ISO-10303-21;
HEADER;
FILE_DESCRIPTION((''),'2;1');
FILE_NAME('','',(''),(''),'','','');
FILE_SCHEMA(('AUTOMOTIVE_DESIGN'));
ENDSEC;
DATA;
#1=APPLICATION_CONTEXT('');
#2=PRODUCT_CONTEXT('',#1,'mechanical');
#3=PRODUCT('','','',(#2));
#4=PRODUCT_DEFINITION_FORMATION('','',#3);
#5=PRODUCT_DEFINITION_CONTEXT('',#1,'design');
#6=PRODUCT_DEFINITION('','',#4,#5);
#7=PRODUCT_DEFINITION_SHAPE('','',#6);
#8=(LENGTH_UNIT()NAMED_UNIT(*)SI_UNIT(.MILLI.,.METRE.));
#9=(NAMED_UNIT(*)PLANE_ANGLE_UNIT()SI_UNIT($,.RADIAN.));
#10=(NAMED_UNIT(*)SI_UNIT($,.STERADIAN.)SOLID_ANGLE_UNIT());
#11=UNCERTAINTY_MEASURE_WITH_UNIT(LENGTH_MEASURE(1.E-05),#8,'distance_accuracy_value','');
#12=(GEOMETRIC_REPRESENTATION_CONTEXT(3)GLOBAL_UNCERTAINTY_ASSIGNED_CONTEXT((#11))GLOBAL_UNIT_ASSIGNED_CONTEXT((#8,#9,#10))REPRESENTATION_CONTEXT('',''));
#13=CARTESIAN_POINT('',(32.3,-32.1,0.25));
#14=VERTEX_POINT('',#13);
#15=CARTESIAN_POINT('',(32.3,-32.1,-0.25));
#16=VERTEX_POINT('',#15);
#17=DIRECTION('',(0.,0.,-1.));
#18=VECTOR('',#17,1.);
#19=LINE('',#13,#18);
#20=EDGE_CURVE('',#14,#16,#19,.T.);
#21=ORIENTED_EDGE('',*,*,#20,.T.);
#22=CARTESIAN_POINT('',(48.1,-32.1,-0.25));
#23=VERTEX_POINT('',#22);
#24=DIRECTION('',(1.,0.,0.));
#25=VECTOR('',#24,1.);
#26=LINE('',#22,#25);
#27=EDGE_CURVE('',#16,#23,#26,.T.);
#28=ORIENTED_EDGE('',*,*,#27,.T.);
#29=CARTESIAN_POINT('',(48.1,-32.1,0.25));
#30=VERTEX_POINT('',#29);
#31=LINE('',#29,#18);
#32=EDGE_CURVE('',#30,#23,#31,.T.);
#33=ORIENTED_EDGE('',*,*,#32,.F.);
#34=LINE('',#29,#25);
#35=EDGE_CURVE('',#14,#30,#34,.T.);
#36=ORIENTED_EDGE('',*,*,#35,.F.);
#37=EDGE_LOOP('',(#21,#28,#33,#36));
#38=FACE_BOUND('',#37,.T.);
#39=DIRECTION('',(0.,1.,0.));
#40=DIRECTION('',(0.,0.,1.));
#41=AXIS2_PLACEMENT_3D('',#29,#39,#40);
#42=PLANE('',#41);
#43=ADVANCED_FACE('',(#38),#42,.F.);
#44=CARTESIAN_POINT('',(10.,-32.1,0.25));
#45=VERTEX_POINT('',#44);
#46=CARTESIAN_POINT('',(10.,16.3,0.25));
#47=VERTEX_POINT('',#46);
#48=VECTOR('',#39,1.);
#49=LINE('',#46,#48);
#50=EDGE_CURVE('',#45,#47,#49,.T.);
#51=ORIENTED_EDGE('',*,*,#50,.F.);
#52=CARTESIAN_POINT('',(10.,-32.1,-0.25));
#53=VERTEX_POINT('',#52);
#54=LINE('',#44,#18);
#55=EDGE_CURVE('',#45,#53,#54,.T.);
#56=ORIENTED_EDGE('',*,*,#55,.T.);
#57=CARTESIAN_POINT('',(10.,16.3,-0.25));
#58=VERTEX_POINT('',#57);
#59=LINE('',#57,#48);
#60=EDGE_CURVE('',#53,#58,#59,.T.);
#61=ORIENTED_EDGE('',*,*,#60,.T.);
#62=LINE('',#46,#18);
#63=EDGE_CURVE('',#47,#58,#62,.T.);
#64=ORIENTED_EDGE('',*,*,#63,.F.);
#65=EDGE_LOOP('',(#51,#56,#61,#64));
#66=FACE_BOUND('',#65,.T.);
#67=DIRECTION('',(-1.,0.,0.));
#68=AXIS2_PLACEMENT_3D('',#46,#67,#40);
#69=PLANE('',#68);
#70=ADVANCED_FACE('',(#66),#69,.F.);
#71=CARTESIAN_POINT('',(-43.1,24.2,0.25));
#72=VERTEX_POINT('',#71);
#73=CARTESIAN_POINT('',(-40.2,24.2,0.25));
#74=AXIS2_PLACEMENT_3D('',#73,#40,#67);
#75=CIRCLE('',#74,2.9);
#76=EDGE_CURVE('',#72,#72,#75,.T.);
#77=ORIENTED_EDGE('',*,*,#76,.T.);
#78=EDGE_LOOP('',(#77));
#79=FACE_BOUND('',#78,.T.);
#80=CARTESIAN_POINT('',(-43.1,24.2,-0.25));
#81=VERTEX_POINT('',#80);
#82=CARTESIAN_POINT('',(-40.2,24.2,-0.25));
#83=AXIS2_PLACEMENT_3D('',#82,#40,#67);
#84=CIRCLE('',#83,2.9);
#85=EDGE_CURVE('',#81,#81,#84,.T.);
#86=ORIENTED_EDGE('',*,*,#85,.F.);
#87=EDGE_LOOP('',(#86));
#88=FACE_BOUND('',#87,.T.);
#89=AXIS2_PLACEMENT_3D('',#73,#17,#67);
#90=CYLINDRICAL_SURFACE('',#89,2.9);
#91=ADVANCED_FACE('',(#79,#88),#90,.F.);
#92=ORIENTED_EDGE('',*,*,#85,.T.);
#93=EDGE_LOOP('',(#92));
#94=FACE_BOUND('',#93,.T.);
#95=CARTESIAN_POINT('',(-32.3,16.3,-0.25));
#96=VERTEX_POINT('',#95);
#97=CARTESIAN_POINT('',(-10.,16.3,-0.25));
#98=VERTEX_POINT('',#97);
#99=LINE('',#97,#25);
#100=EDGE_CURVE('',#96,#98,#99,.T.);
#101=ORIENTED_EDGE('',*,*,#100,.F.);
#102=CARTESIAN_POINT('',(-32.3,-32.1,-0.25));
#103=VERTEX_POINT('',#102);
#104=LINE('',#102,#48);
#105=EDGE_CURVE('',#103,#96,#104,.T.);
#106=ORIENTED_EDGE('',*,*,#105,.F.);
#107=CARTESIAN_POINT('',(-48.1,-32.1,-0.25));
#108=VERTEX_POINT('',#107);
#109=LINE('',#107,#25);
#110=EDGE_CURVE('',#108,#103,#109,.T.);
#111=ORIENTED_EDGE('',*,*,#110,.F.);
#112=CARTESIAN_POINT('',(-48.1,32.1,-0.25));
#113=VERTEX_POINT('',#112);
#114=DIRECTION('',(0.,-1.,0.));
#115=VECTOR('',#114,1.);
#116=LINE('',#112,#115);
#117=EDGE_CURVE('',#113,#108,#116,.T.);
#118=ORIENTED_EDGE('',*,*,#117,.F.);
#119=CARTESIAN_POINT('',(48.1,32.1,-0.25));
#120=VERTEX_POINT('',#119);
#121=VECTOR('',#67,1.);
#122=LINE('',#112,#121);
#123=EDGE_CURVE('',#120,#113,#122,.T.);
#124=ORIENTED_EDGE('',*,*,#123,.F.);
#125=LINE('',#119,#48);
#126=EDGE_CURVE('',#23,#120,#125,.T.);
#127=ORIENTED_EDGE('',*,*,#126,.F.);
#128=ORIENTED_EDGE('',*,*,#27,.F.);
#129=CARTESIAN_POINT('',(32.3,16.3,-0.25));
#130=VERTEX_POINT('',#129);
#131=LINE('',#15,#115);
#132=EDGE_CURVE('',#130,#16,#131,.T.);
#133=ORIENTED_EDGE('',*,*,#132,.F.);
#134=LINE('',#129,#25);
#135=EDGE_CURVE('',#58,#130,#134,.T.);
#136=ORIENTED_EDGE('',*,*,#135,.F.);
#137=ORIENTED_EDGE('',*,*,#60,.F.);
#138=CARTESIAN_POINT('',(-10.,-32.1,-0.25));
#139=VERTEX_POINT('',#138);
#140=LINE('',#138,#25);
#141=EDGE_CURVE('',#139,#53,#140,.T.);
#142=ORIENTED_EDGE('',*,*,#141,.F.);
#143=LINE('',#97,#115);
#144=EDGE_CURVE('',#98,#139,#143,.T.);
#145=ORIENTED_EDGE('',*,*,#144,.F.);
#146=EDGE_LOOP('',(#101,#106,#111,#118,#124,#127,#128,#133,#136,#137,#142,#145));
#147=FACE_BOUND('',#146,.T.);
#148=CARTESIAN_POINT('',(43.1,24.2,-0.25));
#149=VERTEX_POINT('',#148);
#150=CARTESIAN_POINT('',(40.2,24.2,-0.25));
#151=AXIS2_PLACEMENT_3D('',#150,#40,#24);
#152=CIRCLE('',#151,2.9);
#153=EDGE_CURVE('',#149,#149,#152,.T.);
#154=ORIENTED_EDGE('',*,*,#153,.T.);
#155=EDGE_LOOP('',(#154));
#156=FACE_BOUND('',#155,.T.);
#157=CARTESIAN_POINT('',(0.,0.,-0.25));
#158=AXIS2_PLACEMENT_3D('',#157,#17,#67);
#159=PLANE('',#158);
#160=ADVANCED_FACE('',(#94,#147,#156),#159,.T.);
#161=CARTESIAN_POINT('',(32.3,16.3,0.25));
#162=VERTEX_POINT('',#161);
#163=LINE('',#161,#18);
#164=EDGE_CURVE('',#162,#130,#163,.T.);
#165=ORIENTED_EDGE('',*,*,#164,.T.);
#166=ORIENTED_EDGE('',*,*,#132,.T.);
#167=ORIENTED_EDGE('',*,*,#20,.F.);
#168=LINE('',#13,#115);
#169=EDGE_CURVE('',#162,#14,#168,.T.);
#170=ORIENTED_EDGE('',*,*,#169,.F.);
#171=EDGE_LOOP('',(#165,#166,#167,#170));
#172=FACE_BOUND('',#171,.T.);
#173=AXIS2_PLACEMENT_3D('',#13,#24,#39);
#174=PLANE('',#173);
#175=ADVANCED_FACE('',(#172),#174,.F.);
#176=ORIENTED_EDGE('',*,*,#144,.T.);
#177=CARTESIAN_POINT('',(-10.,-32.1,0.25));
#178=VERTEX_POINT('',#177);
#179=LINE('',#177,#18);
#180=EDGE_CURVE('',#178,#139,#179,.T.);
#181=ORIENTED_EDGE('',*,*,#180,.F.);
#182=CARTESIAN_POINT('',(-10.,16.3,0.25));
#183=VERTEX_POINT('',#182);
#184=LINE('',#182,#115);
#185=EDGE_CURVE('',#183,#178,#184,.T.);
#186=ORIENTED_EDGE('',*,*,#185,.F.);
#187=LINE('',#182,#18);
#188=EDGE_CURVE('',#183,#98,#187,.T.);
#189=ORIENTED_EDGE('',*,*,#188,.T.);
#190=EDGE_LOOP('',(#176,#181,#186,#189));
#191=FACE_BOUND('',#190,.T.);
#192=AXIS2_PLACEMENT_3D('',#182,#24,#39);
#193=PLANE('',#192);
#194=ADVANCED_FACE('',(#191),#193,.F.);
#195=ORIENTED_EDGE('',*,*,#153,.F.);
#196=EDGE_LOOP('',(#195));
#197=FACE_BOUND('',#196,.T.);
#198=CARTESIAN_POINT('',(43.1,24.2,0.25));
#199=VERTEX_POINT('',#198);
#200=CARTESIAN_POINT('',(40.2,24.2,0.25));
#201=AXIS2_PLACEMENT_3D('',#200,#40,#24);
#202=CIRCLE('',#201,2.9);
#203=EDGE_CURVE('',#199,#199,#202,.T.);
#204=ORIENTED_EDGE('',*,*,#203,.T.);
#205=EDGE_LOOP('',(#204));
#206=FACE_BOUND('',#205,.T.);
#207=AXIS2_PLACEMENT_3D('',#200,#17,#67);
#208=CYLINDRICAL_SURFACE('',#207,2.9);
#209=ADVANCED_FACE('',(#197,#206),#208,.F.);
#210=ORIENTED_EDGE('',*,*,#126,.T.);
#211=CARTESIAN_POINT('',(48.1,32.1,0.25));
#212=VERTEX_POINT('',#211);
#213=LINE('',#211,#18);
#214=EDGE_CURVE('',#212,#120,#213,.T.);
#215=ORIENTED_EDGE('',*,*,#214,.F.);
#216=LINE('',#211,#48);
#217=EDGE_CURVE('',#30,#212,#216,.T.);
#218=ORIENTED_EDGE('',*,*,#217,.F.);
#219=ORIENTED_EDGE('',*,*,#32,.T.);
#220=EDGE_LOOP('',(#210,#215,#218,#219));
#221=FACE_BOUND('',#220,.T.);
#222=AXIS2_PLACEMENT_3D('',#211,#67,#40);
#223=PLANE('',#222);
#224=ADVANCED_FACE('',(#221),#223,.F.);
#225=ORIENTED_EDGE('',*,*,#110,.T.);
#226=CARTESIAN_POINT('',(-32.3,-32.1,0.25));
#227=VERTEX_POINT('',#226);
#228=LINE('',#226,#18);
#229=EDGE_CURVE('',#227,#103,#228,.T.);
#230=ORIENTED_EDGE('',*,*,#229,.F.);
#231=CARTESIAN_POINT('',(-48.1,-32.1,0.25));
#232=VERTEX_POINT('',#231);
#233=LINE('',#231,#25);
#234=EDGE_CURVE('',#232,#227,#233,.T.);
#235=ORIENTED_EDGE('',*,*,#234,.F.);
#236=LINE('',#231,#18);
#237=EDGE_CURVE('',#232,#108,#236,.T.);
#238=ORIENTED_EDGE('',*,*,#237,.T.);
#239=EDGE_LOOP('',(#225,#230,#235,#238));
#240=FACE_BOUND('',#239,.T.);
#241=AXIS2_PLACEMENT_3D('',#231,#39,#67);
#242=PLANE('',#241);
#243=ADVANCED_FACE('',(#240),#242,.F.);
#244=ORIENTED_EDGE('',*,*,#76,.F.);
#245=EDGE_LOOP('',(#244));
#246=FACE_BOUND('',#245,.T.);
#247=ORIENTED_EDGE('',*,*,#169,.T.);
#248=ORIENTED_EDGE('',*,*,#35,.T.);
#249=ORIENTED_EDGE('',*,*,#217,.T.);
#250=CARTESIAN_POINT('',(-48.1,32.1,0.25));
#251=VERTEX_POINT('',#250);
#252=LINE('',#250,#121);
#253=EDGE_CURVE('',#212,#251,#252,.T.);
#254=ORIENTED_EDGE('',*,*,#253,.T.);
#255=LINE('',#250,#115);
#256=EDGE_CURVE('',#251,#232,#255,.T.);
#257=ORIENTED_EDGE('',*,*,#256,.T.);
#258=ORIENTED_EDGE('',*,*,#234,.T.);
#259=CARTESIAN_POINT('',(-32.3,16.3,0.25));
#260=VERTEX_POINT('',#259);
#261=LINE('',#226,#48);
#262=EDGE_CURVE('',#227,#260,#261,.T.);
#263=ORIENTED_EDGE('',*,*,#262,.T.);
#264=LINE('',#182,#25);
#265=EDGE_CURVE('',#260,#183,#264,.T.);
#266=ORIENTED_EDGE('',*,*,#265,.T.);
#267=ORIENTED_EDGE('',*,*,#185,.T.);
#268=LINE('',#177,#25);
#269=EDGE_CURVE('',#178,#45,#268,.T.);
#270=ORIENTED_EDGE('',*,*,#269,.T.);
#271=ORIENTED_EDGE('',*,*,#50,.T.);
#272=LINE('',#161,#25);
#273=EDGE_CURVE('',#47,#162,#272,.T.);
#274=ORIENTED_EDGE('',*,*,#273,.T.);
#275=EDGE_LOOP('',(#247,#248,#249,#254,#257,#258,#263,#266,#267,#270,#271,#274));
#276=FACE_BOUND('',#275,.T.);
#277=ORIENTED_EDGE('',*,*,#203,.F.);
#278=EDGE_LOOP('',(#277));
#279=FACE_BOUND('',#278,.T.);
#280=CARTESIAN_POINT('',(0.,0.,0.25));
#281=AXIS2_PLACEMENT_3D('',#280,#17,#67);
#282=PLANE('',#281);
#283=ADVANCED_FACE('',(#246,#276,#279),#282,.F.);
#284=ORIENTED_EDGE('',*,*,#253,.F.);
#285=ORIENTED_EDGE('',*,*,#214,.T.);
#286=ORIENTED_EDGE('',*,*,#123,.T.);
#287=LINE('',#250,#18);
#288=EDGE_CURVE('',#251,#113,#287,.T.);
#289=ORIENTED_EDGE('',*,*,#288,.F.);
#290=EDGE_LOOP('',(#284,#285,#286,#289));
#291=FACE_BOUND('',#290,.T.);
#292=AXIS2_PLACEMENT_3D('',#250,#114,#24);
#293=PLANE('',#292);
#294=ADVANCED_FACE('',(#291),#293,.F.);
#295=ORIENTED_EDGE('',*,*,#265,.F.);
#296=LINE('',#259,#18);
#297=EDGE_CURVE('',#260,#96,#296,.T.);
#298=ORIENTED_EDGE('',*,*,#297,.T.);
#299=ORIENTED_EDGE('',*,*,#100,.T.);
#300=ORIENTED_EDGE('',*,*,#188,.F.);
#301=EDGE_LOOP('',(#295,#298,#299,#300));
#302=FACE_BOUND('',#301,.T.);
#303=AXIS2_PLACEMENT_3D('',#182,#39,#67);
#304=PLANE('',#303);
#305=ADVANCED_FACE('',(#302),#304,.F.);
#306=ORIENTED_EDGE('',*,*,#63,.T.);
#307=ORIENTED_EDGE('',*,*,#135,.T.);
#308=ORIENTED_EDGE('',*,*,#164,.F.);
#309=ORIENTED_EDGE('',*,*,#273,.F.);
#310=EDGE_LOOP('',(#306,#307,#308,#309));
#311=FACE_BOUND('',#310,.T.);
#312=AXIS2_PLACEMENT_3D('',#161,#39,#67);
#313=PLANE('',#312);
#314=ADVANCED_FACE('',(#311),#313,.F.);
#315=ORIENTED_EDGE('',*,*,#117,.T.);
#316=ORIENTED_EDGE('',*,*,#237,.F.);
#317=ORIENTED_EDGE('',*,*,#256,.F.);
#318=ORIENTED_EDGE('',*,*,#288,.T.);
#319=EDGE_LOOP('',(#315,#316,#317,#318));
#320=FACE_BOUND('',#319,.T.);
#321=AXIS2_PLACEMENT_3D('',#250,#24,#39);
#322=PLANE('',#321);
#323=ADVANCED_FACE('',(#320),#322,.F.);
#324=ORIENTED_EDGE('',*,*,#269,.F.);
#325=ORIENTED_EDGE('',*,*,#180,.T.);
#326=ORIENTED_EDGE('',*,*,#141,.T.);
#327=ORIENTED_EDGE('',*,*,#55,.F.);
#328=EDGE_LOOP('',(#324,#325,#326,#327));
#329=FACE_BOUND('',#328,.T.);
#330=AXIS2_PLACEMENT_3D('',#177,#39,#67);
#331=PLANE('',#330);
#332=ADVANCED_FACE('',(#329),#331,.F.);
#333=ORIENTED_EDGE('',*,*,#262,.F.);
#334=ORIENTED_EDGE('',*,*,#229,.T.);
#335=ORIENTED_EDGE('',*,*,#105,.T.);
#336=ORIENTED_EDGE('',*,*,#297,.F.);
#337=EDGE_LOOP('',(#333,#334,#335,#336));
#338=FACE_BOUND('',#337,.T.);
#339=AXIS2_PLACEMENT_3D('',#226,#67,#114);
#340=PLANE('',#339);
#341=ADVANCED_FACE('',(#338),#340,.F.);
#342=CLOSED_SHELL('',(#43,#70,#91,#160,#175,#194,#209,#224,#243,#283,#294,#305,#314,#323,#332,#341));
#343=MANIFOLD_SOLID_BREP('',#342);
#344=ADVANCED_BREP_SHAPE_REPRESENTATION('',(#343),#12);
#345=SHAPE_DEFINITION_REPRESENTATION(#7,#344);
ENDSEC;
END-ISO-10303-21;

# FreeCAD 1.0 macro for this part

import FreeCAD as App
import Part
import Sketcher
Q = App.Units.Quantity


def add_polygon(sketch, points):
    """Adds a closed chain of lines whose ends are joined by coincident constraints."""
    first, n = sketch.GeometryCount, len(points)
    for a, b in zip(points, points[1:] + points[:1]):
        sketch.addGeometry(Part.LineSegment(App.Vector(*a, 0), App.Vector(*b, 0)), False)
    for i in range(n):
        sketch.addConstraint(Sketcher.Constraint("Coincident", first + i, 2, first + (i + 1) % n, 1))

doc = App.newDocument("Part")
body = doc.addObject("PartDesign::Body", "Body")

# Sketch on XY plane
sketch1 = body.newObject("Sketcher::SketchObject", "Sketch")
sketch1.AttachmentSupport = (doc.getObject("XY_Plane"), [""])
sketch1.MapMode = "FlatFace"
add_polygon(sketch1, [(48.1, 32.1), (-48.1, 32.1), (-48.1, -32.1), (-32.3, -32.1), (-32.3, 16.3), (-10, 16.3), (-10, -32.1), (10, -32.1), (10, 16.3), (32.3, 16.3), (32.3, -32.1), (48.1, -32.1)])  # lines 0-11
sketch1.addGeometry(Part.Circle(App.Vector(40.2, 24.2, 0), App.Vector(0, 0, 1), 2.9), False)  # 12
sketch1.addGeometry(Part.Circle(App.Vector(-40.2, 24.2, 0), App.Vector(0, 0, 1), 2.9), False)  # 13
sketch1.addConstraint(Sketcher.Constraint("Horizontal", 0))
sketch1.addConstraint(Sketcher.Constraint("Vertical", 1))
sketch1.addConstraint(Sketcher.Constraint("Horizontal", 2))
sketch1.addConstraint(Sketcher.Constraint("Vertical", 3))
sketch1.addConstraint(Sketcher.Constraint("Horizontal", 4))
sketch1.addConstraint(Sketcher.Constraint("Vertical", 5))
sketch1.addConstraint(Sketcher.Constraint("Horizontal", 6))
sketch1.addConstraint(Sketcher.Constraint("Vertical", 7))
sketch1.addConstraint(Sketcher.Constraint("Horizontal", 8))
sketch1.addConstraint(Sketcher.Constraint("Vertical", 9))
sketch1.addConstraint(Sketcher.Constraint("Horizontal", 10))
sketch1.addConstraint(Sketcher.Constraint("Vertical", 11))
sketch1.addConstraint(Sketcher.Constraint("Equal", 12, 13))
sketch1.addConstraint(Sketcher.Constraint("Symmetric", 0, 2, 10, 2, -1, 1))
sketch1.addConstraint(Sketcher.Constraint("Symmetric", 12, 3, 13, 3, -2))
sketch1.addConstraint(Sketcher.Constraint("Symmetric", 4, 2, 7, 2, -2))
sketch1.addConstraint(Sketcher.Constraint("Symmetric", 2, 2, 9, 2, -2))
sketch1.addConstraint(Sketcher.Constraint("Horizontal", 2, 2, 5, 2))
sketch1.addConstraint(Sketcher.Constraint("Diameter", 12, Q("5.8 mm")))
sketch1.addConstraint(Sketcher.Constraint("DistanceX", 6, 1, 6, 2, Q("20 mm")))
sketch1.addConstraint(Sketcher.Constraint("DistanceX", 0, 2, 0, 1, Q("96.2 mm")))
sketch1.addConstraint(Sketcher.Constraint("DistanceX", 2, 1, 2, 2, Q("15.8 mm")))
sketch1.addConstraint(Sketcher.Constraint("DistanceY", 1, 2, 1, 1, Q("64.2 mm")))
sketch1.addConstraint(Sketcher.Constraint("DistanceY", 3, 1, 3, 2, Q("48.4 mm")))
sketch1.addConstraint(Sketcher.Constraint("DistanceX", -1, 1, 12, 3, Q("40.2 mm")))
sketch1.addConstraint(Sketcher.Constraint("DistanceY", -1, 1, 12, 3, Q("24.2 mm")))
pad1 = body.newObject("PartDesign::Pad", "Pad")
pad1.Profile = sketch1
pad1.Length = 0.5
pad1.Midplane = True

doc.recompute()
